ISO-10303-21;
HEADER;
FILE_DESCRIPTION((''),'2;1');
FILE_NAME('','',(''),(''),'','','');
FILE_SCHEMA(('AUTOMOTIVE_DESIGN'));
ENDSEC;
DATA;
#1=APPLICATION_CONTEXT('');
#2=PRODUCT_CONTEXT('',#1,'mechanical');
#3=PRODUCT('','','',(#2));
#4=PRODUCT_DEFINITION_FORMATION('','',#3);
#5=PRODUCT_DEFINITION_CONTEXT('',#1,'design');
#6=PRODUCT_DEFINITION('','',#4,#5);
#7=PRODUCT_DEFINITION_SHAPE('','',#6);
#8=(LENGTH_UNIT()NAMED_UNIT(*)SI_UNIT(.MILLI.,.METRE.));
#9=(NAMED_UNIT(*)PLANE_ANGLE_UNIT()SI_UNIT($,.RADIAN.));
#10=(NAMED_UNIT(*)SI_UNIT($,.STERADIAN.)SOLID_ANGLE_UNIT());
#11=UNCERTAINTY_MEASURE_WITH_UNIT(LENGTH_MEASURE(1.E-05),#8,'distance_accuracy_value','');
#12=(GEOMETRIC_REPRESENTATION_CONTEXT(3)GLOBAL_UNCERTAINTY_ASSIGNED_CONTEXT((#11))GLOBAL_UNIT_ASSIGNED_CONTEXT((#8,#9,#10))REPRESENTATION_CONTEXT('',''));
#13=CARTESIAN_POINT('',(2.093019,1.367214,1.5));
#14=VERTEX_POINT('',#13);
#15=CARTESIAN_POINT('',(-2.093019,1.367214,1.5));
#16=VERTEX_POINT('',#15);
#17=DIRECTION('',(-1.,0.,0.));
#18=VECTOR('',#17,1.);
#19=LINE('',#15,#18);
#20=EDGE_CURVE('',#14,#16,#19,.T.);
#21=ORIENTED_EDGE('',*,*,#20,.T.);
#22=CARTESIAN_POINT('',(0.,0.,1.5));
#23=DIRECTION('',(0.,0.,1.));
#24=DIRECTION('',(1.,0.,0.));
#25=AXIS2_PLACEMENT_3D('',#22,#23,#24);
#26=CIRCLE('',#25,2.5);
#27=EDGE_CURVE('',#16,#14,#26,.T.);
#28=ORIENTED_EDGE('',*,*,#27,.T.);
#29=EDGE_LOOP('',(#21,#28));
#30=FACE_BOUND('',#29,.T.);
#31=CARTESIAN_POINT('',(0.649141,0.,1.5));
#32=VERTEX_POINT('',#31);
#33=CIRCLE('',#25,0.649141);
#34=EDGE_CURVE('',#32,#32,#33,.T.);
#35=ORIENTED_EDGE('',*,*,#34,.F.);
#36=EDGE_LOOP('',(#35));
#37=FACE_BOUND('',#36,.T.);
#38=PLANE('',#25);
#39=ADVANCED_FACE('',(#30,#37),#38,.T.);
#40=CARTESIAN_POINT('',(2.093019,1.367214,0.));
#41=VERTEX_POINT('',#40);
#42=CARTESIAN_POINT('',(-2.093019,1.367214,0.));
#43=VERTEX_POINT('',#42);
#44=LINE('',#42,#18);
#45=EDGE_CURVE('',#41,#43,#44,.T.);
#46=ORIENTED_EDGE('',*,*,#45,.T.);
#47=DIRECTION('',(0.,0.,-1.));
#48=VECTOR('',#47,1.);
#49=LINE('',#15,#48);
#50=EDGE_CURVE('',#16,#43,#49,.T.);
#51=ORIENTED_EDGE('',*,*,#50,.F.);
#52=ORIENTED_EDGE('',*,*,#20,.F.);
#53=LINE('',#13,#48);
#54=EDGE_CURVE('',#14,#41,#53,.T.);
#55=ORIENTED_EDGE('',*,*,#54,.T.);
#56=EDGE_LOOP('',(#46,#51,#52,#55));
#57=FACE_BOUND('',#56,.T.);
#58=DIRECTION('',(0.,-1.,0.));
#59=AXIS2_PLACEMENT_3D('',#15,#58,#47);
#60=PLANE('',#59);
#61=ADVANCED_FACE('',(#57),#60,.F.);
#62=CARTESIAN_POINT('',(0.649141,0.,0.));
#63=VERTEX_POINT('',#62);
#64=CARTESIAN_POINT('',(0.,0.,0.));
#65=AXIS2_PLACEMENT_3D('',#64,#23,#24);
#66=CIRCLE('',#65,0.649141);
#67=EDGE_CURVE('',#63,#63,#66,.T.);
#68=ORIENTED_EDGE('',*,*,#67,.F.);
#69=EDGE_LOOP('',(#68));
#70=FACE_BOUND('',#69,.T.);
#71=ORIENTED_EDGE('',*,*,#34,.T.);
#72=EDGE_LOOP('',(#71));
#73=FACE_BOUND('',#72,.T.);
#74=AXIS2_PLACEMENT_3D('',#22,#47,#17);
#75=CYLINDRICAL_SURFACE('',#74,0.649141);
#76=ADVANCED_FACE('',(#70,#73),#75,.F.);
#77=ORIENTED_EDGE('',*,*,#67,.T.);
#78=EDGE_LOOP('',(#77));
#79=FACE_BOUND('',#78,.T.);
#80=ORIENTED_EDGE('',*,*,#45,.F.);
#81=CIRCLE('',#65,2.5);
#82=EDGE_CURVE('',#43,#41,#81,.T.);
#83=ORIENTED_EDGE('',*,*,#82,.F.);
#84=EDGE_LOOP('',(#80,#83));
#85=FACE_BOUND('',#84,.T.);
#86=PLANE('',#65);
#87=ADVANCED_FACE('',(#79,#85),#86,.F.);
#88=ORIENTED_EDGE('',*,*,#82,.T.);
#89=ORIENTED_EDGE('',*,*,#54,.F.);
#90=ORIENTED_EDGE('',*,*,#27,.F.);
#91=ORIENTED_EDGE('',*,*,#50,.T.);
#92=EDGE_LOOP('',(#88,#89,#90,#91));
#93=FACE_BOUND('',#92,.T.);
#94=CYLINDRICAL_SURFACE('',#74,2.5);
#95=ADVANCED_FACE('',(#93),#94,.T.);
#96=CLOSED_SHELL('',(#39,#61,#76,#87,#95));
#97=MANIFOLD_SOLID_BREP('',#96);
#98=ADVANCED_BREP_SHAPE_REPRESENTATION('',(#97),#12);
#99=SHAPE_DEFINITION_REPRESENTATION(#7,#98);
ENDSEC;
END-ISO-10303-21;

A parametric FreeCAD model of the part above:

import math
import FreeCAD as App
import Part
import Sketcher

doc = App.newDocument("Part")
body = doc.addObject("PartDesign::Body", "Body")

sketch1 = doc.addObject("Sketcher::SketchObject", "Sketch")
body.addObject(sketch1)
sketch1.AttachmentSupport = (doc.XY_Plane, [""])
sketch1.MapMode = "FlatFace"
sketch1.addGeometry(Part.LineSegment(App.Vector(2.1, 1.4, 0), App.Vector(-2.1, 1.4, 0)), False)
sketch1.addGeometry(Part.ArcOfCircle(Part.Circle(App.Vector(0, 0, 0), App.Vector(0, 0, 1), 2.5), math.radians(147), math.radians(393)), False)
sketch1.addGeometry(Part.Circle(App.Vector(0, 0, 0), App.Vector(0, 0, 1), 0.6), False)
sketch1.addConstraint(Sketcher.Constraint("Coincident", 0, 1, 1, 2))
sketch1.addConstraint(Sketcher.Constraint("Coincident", 1, 1, 0, 2))
sketch1.addConstraint(Sketcher.Constraint("Horizontal", 0))
sketch1.addConstraint(Sketcher.Constraint("Coincident", 1, 3, -1, 1))
sketch1.addConstraint(Sketcher.Constraint("Coincident", 2, 3, -1, 1))
sketch1.addConstraint(Sketcher.Constraint("Radius", 1, 2.5))
sketch1.addConstraint(Sketcher.Constraint("Diameter", 2, 1.298283))
sketch1.addConstraint(Sketcher.Constraint("DistanceX", 0, 2, 0, 1, 4.186037))
pad1 = doc.addObject("PartDesign::Pad", "Pad")
body.addObject(pad1)
pad1.Profile = sketch1
pad1.Length = 1.5

doc.recompute()
